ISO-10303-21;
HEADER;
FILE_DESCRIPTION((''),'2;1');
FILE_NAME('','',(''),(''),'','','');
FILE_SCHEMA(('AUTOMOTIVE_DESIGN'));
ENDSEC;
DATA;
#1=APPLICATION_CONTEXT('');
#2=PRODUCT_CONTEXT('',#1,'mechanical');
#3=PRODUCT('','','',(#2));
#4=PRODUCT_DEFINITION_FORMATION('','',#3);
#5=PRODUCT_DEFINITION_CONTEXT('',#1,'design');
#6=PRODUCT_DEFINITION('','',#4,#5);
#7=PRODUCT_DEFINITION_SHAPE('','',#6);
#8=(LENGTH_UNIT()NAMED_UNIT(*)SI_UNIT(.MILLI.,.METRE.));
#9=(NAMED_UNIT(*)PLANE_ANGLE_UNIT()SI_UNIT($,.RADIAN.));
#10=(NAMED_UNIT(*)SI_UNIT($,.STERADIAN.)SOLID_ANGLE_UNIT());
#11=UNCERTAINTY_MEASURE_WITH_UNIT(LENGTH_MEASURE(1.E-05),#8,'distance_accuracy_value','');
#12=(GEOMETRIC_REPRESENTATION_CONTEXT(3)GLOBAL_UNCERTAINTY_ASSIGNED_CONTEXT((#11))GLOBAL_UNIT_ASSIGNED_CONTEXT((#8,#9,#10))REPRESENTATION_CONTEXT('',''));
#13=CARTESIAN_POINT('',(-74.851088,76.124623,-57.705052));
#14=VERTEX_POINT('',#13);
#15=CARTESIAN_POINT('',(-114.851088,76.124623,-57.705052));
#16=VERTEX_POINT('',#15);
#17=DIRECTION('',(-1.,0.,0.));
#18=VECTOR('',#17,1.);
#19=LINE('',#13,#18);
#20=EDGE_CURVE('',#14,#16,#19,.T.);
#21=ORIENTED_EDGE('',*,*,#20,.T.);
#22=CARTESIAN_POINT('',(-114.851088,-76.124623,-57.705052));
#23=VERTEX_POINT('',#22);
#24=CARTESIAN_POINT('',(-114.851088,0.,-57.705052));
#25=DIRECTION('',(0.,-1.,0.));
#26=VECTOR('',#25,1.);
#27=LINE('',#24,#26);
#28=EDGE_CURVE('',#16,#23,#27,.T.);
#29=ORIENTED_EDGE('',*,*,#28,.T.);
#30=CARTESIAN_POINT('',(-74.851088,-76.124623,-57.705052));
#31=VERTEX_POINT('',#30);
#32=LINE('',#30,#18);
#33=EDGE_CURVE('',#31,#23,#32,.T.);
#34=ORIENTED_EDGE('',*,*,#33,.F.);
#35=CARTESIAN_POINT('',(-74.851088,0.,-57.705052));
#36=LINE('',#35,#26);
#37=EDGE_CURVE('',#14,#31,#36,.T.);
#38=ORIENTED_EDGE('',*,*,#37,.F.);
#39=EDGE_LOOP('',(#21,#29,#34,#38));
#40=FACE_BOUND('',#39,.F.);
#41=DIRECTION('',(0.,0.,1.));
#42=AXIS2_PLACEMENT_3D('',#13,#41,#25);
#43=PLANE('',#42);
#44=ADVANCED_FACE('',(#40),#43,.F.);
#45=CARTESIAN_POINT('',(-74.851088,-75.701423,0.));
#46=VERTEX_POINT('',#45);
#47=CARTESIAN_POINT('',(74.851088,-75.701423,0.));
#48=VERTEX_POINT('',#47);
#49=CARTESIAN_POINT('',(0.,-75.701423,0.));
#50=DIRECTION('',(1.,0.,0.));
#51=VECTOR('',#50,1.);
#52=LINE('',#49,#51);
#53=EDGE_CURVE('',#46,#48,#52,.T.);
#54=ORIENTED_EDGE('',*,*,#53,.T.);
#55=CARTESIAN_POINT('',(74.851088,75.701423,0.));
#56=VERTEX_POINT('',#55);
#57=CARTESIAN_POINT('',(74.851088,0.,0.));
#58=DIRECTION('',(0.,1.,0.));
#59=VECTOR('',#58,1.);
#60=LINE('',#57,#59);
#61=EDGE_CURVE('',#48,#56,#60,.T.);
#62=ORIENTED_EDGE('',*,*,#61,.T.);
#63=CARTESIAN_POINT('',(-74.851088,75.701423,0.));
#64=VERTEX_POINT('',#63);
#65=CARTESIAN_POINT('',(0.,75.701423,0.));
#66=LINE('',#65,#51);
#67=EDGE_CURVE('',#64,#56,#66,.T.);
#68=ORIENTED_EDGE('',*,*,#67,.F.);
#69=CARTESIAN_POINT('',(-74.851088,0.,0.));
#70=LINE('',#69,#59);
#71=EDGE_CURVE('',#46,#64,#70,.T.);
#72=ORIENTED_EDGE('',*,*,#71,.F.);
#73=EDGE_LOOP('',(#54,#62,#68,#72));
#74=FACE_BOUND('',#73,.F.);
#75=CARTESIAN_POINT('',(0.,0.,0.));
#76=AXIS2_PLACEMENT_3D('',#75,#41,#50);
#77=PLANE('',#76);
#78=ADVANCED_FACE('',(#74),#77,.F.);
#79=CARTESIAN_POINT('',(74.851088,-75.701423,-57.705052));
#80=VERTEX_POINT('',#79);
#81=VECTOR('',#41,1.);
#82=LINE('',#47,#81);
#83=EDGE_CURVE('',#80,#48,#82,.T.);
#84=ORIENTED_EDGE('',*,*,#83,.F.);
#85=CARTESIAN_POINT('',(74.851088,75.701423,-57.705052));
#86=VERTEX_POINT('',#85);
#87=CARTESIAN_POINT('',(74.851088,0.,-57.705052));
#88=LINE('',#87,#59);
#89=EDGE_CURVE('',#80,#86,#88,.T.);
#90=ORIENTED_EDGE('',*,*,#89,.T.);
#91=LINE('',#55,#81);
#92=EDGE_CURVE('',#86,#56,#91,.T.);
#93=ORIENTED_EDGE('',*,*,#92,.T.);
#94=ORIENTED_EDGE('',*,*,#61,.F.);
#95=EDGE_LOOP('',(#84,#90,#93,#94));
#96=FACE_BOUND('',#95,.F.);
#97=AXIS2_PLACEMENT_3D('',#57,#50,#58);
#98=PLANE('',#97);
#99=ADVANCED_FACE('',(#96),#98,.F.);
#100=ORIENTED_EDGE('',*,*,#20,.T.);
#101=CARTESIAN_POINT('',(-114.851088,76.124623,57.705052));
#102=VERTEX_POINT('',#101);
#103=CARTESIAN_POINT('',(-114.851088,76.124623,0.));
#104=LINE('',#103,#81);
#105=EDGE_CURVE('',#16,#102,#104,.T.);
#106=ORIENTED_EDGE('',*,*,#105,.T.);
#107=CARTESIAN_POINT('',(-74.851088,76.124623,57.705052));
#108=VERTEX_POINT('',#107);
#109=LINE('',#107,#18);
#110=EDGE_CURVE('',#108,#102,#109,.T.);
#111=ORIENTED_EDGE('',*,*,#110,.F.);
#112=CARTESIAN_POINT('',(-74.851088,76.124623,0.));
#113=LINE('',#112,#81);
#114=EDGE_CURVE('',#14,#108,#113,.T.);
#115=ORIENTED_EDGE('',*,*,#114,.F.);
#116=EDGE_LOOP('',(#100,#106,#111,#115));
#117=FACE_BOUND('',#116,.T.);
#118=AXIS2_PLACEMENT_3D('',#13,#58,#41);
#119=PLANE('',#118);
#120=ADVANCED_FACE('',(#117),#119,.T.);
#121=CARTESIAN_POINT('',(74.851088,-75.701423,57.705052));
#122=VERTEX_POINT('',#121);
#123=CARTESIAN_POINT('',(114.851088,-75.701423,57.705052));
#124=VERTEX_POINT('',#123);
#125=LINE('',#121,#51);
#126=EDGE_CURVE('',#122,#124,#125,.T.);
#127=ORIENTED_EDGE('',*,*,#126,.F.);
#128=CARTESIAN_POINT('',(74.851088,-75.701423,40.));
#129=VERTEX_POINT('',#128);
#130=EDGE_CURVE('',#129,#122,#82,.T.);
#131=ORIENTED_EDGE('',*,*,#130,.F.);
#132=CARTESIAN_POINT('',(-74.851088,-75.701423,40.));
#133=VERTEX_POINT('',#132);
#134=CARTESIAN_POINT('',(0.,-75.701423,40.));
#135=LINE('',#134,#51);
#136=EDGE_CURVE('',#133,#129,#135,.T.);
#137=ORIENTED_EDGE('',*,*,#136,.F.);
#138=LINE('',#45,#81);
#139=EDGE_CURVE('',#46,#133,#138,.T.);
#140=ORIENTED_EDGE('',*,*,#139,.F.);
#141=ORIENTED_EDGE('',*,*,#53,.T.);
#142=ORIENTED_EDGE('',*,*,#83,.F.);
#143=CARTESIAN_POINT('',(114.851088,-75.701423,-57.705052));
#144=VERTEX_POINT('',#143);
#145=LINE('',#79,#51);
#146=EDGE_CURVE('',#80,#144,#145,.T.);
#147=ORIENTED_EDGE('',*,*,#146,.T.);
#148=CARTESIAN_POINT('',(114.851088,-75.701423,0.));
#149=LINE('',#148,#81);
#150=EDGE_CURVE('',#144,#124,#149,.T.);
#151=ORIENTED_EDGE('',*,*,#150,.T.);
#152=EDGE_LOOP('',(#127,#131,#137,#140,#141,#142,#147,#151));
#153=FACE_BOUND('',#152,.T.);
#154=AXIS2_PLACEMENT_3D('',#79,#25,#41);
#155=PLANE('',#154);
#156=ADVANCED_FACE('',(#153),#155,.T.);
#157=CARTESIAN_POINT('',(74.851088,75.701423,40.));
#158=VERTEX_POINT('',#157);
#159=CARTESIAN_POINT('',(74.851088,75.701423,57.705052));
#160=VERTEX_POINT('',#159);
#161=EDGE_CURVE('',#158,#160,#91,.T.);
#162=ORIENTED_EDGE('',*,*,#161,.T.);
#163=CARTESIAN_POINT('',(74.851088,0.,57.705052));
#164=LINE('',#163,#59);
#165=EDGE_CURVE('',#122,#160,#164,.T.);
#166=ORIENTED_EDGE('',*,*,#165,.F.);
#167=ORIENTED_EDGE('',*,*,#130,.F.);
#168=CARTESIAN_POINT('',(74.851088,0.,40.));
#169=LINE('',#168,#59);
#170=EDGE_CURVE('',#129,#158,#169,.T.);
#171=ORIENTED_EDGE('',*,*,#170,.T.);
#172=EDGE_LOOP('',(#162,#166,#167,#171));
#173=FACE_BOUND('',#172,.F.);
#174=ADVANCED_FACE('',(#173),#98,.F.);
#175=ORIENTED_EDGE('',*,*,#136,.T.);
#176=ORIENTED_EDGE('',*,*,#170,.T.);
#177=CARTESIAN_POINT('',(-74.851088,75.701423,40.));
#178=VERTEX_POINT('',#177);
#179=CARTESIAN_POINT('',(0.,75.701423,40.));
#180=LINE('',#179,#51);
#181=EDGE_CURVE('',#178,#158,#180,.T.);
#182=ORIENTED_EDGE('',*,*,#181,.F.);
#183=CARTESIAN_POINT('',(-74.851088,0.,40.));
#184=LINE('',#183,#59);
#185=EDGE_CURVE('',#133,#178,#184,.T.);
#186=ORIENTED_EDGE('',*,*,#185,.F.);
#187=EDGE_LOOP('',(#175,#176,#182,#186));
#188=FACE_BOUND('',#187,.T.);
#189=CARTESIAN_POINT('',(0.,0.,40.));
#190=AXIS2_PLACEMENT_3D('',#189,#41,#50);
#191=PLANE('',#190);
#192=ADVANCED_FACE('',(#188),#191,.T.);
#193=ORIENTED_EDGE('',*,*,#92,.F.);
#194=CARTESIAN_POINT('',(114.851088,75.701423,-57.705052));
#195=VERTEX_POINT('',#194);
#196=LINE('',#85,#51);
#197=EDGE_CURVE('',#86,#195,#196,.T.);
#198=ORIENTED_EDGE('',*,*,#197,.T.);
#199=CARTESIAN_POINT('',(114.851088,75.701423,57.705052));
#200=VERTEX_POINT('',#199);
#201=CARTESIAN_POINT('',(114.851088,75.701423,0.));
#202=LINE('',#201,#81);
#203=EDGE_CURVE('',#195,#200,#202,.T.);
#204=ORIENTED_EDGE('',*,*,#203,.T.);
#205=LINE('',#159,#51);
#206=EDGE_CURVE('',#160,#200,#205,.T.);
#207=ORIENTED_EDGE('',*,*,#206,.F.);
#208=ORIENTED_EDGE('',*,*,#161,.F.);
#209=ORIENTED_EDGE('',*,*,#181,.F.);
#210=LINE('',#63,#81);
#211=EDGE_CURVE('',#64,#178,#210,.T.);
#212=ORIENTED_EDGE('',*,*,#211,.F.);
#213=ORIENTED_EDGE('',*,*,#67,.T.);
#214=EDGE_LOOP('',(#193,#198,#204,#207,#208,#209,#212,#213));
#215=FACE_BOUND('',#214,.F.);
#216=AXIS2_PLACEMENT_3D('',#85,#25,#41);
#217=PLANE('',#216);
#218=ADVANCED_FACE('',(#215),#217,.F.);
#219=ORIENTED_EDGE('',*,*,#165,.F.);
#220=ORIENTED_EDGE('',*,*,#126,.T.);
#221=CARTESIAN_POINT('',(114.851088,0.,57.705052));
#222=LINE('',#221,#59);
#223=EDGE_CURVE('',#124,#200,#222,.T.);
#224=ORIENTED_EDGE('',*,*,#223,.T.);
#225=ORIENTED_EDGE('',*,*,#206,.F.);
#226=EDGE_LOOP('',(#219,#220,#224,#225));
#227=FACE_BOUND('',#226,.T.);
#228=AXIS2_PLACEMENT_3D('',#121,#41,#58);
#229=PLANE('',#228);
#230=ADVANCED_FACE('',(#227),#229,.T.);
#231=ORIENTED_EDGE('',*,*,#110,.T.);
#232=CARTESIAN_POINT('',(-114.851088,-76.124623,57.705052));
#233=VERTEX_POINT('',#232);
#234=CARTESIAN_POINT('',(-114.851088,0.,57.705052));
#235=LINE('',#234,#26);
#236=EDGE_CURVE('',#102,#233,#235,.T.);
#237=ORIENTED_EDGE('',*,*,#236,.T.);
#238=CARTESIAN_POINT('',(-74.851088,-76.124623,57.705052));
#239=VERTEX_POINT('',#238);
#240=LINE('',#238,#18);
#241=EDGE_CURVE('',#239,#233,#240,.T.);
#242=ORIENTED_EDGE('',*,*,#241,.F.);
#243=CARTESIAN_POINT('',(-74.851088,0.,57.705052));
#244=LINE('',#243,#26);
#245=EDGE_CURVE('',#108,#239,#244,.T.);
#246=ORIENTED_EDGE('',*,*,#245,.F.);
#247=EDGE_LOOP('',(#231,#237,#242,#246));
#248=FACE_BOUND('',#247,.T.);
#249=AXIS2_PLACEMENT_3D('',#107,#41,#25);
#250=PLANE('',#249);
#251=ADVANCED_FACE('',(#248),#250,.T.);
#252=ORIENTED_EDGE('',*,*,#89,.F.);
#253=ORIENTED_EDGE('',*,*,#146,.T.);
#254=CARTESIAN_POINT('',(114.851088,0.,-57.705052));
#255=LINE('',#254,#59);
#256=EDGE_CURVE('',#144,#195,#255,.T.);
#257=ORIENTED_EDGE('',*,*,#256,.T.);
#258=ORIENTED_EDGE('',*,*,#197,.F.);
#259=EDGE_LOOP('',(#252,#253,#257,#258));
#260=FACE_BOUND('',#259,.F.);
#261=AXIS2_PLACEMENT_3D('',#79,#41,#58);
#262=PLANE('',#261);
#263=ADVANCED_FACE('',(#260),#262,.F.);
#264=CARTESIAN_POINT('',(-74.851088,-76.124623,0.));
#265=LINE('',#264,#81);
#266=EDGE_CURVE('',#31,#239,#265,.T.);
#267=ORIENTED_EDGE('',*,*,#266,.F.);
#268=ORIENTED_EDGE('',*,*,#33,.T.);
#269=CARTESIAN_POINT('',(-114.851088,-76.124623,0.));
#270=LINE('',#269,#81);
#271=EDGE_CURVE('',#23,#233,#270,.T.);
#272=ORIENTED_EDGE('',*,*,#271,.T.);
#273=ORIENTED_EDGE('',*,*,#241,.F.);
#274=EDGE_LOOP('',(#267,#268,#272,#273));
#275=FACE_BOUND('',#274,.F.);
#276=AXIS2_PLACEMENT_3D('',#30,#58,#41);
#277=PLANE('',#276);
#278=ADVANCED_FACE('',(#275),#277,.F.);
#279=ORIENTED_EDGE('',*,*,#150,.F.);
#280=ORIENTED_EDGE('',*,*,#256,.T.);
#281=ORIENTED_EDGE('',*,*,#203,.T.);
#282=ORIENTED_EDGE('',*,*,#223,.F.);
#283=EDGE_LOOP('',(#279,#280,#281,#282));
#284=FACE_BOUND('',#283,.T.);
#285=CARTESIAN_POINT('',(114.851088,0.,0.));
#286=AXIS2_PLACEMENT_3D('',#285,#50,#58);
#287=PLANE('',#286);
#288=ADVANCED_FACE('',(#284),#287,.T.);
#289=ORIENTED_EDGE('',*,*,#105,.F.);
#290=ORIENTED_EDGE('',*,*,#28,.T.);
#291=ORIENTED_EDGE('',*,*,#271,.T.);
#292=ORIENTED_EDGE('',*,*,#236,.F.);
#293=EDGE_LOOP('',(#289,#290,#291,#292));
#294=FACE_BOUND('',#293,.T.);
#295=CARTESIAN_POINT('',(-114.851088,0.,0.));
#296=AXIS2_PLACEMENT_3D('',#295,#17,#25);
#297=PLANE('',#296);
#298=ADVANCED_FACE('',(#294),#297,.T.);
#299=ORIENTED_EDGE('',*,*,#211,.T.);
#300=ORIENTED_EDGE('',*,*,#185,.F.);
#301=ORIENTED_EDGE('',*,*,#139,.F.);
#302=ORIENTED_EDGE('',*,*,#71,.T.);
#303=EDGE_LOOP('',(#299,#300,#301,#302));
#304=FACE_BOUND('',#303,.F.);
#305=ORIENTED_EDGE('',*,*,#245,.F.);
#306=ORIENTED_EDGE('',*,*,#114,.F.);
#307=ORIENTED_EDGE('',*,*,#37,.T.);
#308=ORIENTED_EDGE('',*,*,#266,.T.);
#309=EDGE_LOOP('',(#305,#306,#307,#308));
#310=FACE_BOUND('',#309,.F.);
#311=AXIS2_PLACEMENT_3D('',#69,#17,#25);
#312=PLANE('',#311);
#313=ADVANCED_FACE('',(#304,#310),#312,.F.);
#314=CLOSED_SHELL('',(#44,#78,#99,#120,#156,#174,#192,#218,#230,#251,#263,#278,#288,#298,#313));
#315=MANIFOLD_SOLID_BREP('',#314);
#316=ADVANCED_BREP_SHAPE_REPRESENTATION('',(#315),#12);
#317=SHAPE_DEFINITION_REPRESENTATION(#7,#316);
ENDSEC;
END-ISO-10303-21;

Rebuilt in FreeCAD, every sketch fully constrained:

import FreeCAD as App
import Part
import Sketcher

doc = App.newDocument("Part")
body = doc.addObject("PartDesign::Body", "Body")

sketch1 = body.newObject("Sketcher::SketchObject", "Sketch")
sketch1.AttachmentSupport = (doc.getObject("XY_Plane"), [""])
sketch1.MapMode = "FlatFace"
sketch1.addGeometry(Part.LineSegment(App.Vector(-75, 76, 0), App.Vector(-75, -76, 0)), False)
sketch1.addGeometry(Part.LineSegment(App.Vector(-75, -76, 0), App.Vector(75, -76, 0)), False)
sketch1.addGeometry(Part.LineSegment(App.Vector(75, -76, 0), App.Vector(75, 76, 0)), False)
sketch1.addGeometry(Part.LineSegment(App.Vector(75, 76, 0), App.Vector(-75, 76, 0)), False)
sketch1.addConstraint(Sketcher.Constraint("Coincident", 0, 2, 1, 1))
sketch1.addConstraint(Sketcher.Constraint("Coincident", 1, 2, 2, 1))
sketch1.addConstraint(Sketcher.Constraint("Coincident", 2, 2, 3, 1))
sketch1.addConstraint(Sketcher.Constraint("Coincident", 3, 2, 0, 1))
sketch1.addConstraint(Sketcher.Constraint("Vertical", 0))
sketch1.addConstraint(Sketcher.Constraint("Horizontal", 1))
sketch1.addConstraint(Sketcher.Constraint("Vertical", 2))
sketch1.addConstraint(Sketcher.Constraint("Horizontal", 3))
sketch1.addConstraint(Sketcher.Constraint("Symmetric", 0, 2, 2, 2, -1, 1))
sketch1.addConstraint(Sketcher.Constraint("DistanceX", 1, 1, 1, 2, 149.702176))
sketch1.addConstraint(Sketcher.Constraint("DistanceY", 0, 2, 0, 1, 151.402846))
pad1 = body.newObject("PartDesign::Pad", "Pad")
pad1.Profile = sketch1
pad1.Length = 40

sketch2 = body.newObject("Sketcher::SketchObject", "Sketch001")
sketch2.AttachmentSupport = (doc.getObject("YZ_Plane"), [""])
sketch2.MapMode = "FlatFace"
sketch2.AttachmentOffset = App.Placement(App.Vector(0, 0, 74.851088), App.Rotation())
sketch2.addGeometry(Part.LineSegment(App.Vector(-76, 58, 0), App.Vector(-76, -58, 0)), False)
sketch2.addGeometry(Part.LineSegment(App.Vector(-76, -58, 0), App.Vector(76, -58, 0)), False)
sketch2.addGeometry(Part.LineSegment(App.Vector(76, -58, 0), App.Vector(76, 58, 0)), False)
sketch2.addGeometry(Part.LineSegment(App.Vector(76, 58, 0), App.Vector(-76, 58, 0)), False)
sketch2.addConstraint(Sketcher.Constraint("Coincident", 0, 2, 1, 1))
sketch2.addConstraint(Sketcher.Constraint("Coincident", 1, 2, 2, 1))
sketch2.addConstraint(Sketcher.Constraint("Coincident", 2, 2, 3, 1))
sketch2.addConstraint(Sketcher.Constraint("Coincident", 3, 2, 0, 1))
sketch2.addConstraint(Sketcher.Constraint("Vertical", 0))
sketch2.addConstraint(Sketcher.Constraint("Horizontal", 1))
sketch2.addConstraint(Sketcher.Constraint("Vertical", 2))
sketch2.addConstraint(Sketcher.Constraint("Horizontal", 3))
sketch2.addConstraint(Sketcher.Constraint("Symmetric", 0, 2, 2, 2, -1, 1))
sketch2.addConstraint(Sketcher.Constraint("DistanceX", 1, 1, 1, 2, 151.402846))
sketch2.addConstraint(Sketcher.Constraint("DistanceY", 0, 2, 0, 1, 115.410104))
pad2 = body.newObject("PartDesign::Pad", "Pad001")
pad2.Profile = sketch2
pad2.Length = 40

sketch3 = body.newObject("Sketcher::SketchObject", "Sketch002")
sketch3.AttachmentSupport = (doc.getObject("YZ_Plane"), [""])
sketch3.MapMode = "FlatFace"
sketch3.AttachmentOffset = App.Placement(App.Vector(0, 0, -74.851088), App.Rotation())
sketch3.addGeometry(Part.LineSegment(App.Vector(76, 58, 0), App.Vector(76, -58, 0)), False)
sketch3.addGeometry(Part.LineSegment(App.Vector(76, -58, 0), App.Vector(-76, -58, 0)), False)
sketch3.addGeometry(Part.LineSegment(App.Vector(-76, -58, 0), App.Vector(-76, 58, 0)), False)
sketch3.addGeometry(Part.LineSegment(App.Vector(-76, 58, 0), App.Vector(76, 58, 0)), False)
sketch3.addConstraint(Sketcher.Constraint("Coincident", 0, 2, 1, 1))
sketch3.addConstraint(Sketcher.Constraint("Coincident", 1, 2, 2, 1))
sketch3.addConstraint(Sketcher.Constraint("Coincident", 2, 2, 3, 1))
sketch3.addConstraint(Sketcher.Constraint("Coincident", 3, 2, 0, 1))
sketch3.addConstraint(Sketcher.Constraint("Vertical", 0))
sketch3.addConstraint(Sketcher.Constraint("Horizontal", 1))
sketch3.addConstraint(Sketcher.Constraint("Vertical", 2))
sketch3.addConstraint(Sketcher.Constraint("Horizontal", 3))
sketch3.addConstraint(Sketcher.Constraint("Symmetric", 0, 2, 2, 2, -1, 1))
sketch3.addConstraint(Sketcher.Constraint("DistanceX", 1, 2, 1, 1, 152.249246))
sketch3.addConstraint(Sketcher.Constraint("DistanceY", 0, 2, 0, 1, 115.410104))
pad3 = body.newObject("PartDesign::Pad", "Pad002")
pad3.Profile = sketch3
pad3.Length = 40
pad3.Reversed = True

doc.recompute()
